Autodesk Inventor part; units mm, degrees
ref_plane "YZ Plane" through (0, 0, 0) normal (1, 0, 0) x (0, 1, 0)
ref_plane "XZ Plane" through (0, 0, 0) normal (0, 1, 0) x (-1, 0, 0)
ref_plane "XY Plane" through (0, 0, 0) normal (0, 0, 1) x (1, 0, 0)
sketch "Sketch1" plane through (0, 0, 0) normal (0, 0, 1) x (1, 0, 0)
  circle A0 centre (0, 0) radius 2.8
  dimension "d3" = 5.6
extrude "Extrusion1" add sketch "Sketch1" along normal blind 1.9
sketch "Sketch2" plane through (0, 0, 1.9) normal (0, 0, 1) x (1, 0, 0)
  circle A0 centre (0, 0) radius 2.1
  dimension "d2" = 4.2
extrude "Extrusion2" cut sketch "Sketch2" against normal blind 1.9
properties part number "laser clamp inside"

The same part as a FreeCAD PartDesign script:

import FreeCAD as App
import Part
import Sketcher

doc = App.newDocument("Part")
params = doc.addObject("Spreadsheet::Sheet", "Params")
for row, (alias, value) in enumerate([
    ("sketch1_diameter", "5.6 mm"),
    ("pad1_length", "1.9 mm"),
    ("sketch2_diameter", "4.2 mm"),
    ("pocket1_length", "1.9 mm"),
], start=1):
    params.set(f"A{row}", alias)
    params.set(f"B{row}", "=" + value)
    params.setAlias(f"B{row}", alias)

body = doc.addObject("PartDesign::Body", "Body")

# Sketch on XY plane
sketch1 = doc.addObject("Sketcher::SketchObject", "Sketch")
body.addObject(sketch1)
sketch1.AttachmentSupport = (doc.XY_Plane, [""])
sketch1.MapMode = "FlatFace"
sketch1.addGeometry(Part.Circle(App.Vector(0, 0, 0), App.Vector(0, 0, 1), 2.8), False)
sketch1.addConstraint([
    Sketcher.Constraint("Coincident", 0, 3, -1, 1),
    Sketcher.Constraint("Diameter", 0, 5.6),
])
sketch1.setExpression("Constraints[1]", "Params.sketch1_diameter")
pad1 = doc.addObject("PartDesign::Pad", "Pad")
body.addObject(pad1)
pad1.Profile = sketch1
pad1.setExpression("Length", "Params.pad1_length")

# Sketch on XY plane
sketch2 = doc.addObject("Sketcher::SketchObject", "Sketch001")
body.addObject(sketch2)
sketch2.AttachmentSupport = (doc.XY_Plane, [""])
sketch2.MapMode = "FlatFace"
sketch2.AttachmentOffset = App.Placement(App.Vector(0, 0, 1.9), App.Rotation())
sketch2.addGeometry(Part.Circle(App.Vector(0, 0, 0), App.Vector(0, 0, 1), 2.1), False)
sketch2.addConstraint([
    Sketcher.Constraint("Coincident", 0, 3, -1, 1),
    Sketcher.Constraint("Diameter", 0, 4.2),
])
sketch2.setExpression("Constraints[1]", "Params.sketch2_diameter")
pocket1 = doc.addObject("PartDesign::Pocket", "Pocket")
body.addObject(pocket1)
pocket1.Profile = sketch2
pocket1.setExpression("Length", "Params.pocket1_length")

doc.recompute()
